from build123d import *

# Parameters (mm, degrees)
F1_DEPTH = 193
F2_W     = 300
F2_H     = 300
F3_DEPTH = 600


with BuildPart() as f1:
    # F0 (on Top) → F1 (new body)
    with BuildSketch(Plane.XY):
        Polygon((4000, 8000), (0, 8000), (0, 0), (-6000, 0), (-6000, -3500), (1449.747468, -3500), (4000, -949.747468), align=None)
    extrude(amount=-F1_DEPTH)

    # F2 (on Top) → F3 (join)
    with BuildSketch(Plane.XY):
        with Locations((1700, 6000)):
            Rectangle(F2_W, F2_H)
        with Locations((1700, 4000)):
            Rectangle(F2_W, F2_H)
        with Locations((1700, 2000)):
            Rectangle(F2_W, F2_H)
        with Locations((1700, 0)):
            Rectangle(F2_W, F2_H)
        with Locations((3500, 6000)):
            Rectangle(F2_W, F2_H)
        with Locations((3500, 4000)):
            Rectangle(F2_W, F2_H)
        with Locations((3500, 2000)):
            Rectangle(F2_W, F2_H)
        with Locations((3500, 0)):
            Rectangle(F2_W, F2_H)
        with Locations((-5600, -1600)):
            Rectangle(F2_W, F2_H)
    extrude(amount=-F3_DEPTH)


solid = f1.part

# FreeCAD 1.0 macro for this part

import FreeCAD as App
import Part
import Sketcher

V = App.Vector
Q = App.Units.Quantity


def add_polygon(sketch, points):
    """Adds a closed chain of lines whose ends are joined by coincident constraints."""
    first, n = sketch.GeometryCount, len(points)
    for a, b in zip(points, points[1:] + points[:1]):
        sketch.addGeometry(Part.LineSegment(App.Vector(*a, 0), App.Vector(*b, 0)), False)
    for i in range(n):
        sketch.addConstraint(Sketcher.Constraint("Coincident", first + i, 2, first + (i + 1) % n, 1))

doc = App.newDocument("Part")
params = doc.addObject("Spreadsheet::Sheet", "Params")
for row, (alias, value) in enumerate([
    ("sketch1_width", "4000 mm"),
    ("sketch1_width2", "6000 mm"),
    ("sketch1_height", "8000 mm"),
    ("sketch1_height2", "3500 mm"),
    ("pad1_length", "193 mm"),
    ("sketch2_width", "300 mm"),
    ("pad2_length", "600 mm"),
], start=1):
    params.set(f"A{row}", alias)
    params.set(f"B{row}", "=" + value)
    params.setAlias(f"B{row}", alias)

body = doc.addObject("PartDesign::Body", "Body")

sketch1 = doc.addObject("Sketcher::SketchObject", "Sketch")
body.addObject(sketch1)
sketch1.AttachmentSupport = (doc.XY_Plane, [""])
sketch1.MapMode = "FlatFace"
add_polygon(sketch1, [(4000, 8000), (0, 8000), (0, 0), (-6000, 0), (-6000, -3500), (1449.747468, -3500), (4000, -949.747468)])
sketch1.addConstraint([
    Sketcher.Constraint("Horizontal", 0),
    Sketcher.Constraint("Vertical", 1),
    Sketcher.Constraint("Horizontal", 2),
    Sketcher.Constraint("Vertical", 3),
    Sketcher.Constraint("Horizontal", 4),
    Sketcher.Constraint("Vertical", 6),
    Sketcher.Constraint("Coincident", 1, 2, -1, 1),
    Sketcher.Constraint("DistanceX", 0, 2, 0, 1, 4000.0),
    Sketcher.Constraint("DistanceX", 2, 2, 2, 1, 6000.0),
    Sketcher.Constraint("DistanceY", 1, 2, 1, 1, 8000.0),
    Sketcher.Constraint("DistanceY", 3, 2, 3, 1, 3500.0),
    Sketcher.Constraint("Angle", 5, Q("45 deg")),
    Sketcher.Constraint("Distance", 5, 3606.601718),
])
sketch1.setExpression("Constraints[14]", "Params.sketch1_width")
sketch1.setExpression("Constraints[15]", "Params.sketch1_width2")
sketch1.setExpression("Constraints[16]", "Params.sketch1_height")
sketch1.setExpression("Constraints[17]", "Params.sketch1_height2")
pad1 = doc.addObject("PartDesign::Pad", "Pad")
body.addObject(pad1)
pad1.Profile = sketch1
pad1.setExpression("Length", "Params.pad1_length")
pad1.Reversed = True

sketch2 = doc.addObject("Sketcher::SketchObject", "Sketch001")
body.addObject(sketch2)
sketch2.AttachmentSupport = (doc.XY_Plane, [""])
sketch2.MapMode = "FlatFace"
add_polygon(sketch2, [(1550, 6150), (1550, 5850), (1850, 5850), (1850, 6150)])
add_polygon(sketch2, [(1550, 4150), (1550, 3850), (1850, 3850), (1850, 4150)])
add_polygon(sketch2, [(1550, 2150), (1550, 1850), (1850, 1850), (1850, 2150)])
add_polygon(sketch2, [(1550, 150), (1550, -150), (1850, -150), (1850, 150)])
add_polygon(sketch2, [(3350, 6150), (3350, 5850), (3650, 5850), (3650, 6150)])
add_polygon(sketch2, [(3350, 4150), (3350, 3850), (3650, 3850), (3650, 4150)])
add_polygon(sketch2, [(3350, 2150), (3350, 1850), (3650, 1850), (3650, 2150)])
add_polygon(sketch2, [(3350, 150), (3350, -150), (3650, -150), (3650, 150)])
add_polygon(sketch2, [(-5750, -1450), (-5750, -1750), (-5450, -1750), (-5450, -1450)])
sketch2.addConstraint([
    Sketcher.Constraint("Vertical", 0),
    Sketcher.Constraint("Horizontal", 1),
    Sketcher.Constraint("Vertical", 2),
    Sketcher.Constraint("Horizontal", 3),
    Sketcher.Constraint("Vertical", 4),
    Sketcher.Constraint("Horizontal", 5),
    Sketcher.Constraint("Vertical", 6),
    Sketcher.Constraint("Horizontal", 7),
    Sketcher.Constraint("Vertical", 8),
    Sketcher.Constraint("Horizontal", 9),
    Sketcher.Constraint("Vertical", 10),
    Sketcher.Constraint("Horizontal", 11),
    Sketcher.Constraint("Vertical", 12),
    Sketcher.Constraint("Horizontal", 13),
    Sketcher.Constraint("Vertical", 14),
    Sketcher.Constraint("Horizontal", 15),
    Sketcher.Constraint("Vertical", 16),
    Sketcher.Constraint("Horizontal", 17),
    Sketcher.Constraint("Vertical", 18),
    Sketcher.Constraint("Horizontal", 19),
    Sketcher.Constraint("Vertical", 20),
    Sketcher.Constraint("Horizontal", 21),
    Sketcher.Constraint("Vertical", 22),
    Sketcher.Constraint("Horizontal", 23),
    Sketcher.Constraint("Vertical", 24),
    Sketcher.Constraint("Horizontal", 25),
    Sketcher.Constraint("Vertical", 26),
    Sketcher.Constraint("Horizontal", 27),
    Sketcher.Constraint("Vertical", 28),
    Sketcher.Constraint("Horizontal", 29),
    Sketcher.Constraint("Vertical", 30),
    Sketcher.Constraint("Horizontal", 31),
    Sketcher.Constraint("Vertical", 32),
    Sketcher.Constraint("Horizontal", 33),
    Sketcher.Constraint("Vertical", 34),
    Sketcher.Constraint("Horizontal", 35),
    Sketcher.Constraint("Horizontal", 1, 2, 16, 2),
    Sketcher.Constraint("Horizontal", 3, 2, 18, 2),
    Sketcher.Constraint("Horizontal", 5, 2, 20, 2),
    Sketcher.Constraint("Horizontal", 7, 2, 22, 2),
    Sketcher.Constraint("Horizontal", 9, 2, 24, 2),
    Sketcher.Constraint("Horizontal", 11, 2, 26, 2),
    Sketcher.Constraint("Horizontal", 13, 2, 28, 2),
    Sketcher.Constraint("Horizontal", 15, 2, 30, 2),
    Sketcher.Constraint("Vertical", 3, 2, 4, 2),
    Sketcher.Constraint("Vertical", 2, 2, 5, 2),
    Sketcher.Constraint("Vertical", 7, 2, 8, 2),
    Sketcher.Constraint("Vertical", 6, 2, 9, 2),
    Sketcher.Constraint("Vertical", 11, 2, 12, 2),
    Sketcher.Constraint("Vertical", 10, 2, 13, 2),
    Sketcher.Constraint("Vertical", 19, 2, 20, 2),
    Sketcher.Constraint("Vertical", 18, 2, 21, 2),
    Sketcher.Constraint("Vertical", 23, 2, 24, 2),
    Sketcher.Constraint("Vertical", 22, 2, 25, 2),
    Sketcher.Constraint("Vertical", 27, 2, 28, 2),
    Sketcher.Constraint("Vertical", 26, 2, 29, 2),
    Sketcher.Constraint("Equal", 15, 17),
    Sketcher.Constraint("Equal", 31, 33),
    Sketcher.Constraint("Equal", 35, 0),
    Sketcher.Constraint("Equal", 2, 4),
    Sketcher.Constraint("Equal", 6, 8),
    Sketcher.Constraint("Equal", 10, 12),
    Sketcher.Constraint("Equal", 30, 32),
    Sketcher.Constraint("DistanceX", 1, 1, 1, 2, 300.0),
    Sketcher.Constraint("DistanceX", -1, 1, 0, 2, 1550.0),
    Sketcher.Constraint("DistanceY", -1, 1, 0, 2, 5850.0),
    Sketcher.Constraint("DistanceY", -1, 1, 4, 2, 3850.0),
    Sketcher.Constraint("DistanceY", -1, 1, 8, 2, 1850.0),
    Sketcher.Constraint("DistanceY", 12, 2, -1, 1, 150.0),
    Sketcher.Constraint("DistanceX", -1, 1, 16, 2, 3350.0),
    Sketcher.Constraint("DistanceX", 32, 2, -1, 1, 5750.0),
    Sketcher.Constraint("DistanceY", 32, 2, -1, 1, 1750.0),
])
sketch2.setExpression("Constraints[99]", "Params.sketch2_width")
pad2 = doc.addObject("PartDesign::Pad", "Pad001")
body.addObject(pad2)
pad2.Profile = sketch2
pad2.setExpression("Length", "Params.pad2_length")
pad2.Reversed = True

doc.recompute()
